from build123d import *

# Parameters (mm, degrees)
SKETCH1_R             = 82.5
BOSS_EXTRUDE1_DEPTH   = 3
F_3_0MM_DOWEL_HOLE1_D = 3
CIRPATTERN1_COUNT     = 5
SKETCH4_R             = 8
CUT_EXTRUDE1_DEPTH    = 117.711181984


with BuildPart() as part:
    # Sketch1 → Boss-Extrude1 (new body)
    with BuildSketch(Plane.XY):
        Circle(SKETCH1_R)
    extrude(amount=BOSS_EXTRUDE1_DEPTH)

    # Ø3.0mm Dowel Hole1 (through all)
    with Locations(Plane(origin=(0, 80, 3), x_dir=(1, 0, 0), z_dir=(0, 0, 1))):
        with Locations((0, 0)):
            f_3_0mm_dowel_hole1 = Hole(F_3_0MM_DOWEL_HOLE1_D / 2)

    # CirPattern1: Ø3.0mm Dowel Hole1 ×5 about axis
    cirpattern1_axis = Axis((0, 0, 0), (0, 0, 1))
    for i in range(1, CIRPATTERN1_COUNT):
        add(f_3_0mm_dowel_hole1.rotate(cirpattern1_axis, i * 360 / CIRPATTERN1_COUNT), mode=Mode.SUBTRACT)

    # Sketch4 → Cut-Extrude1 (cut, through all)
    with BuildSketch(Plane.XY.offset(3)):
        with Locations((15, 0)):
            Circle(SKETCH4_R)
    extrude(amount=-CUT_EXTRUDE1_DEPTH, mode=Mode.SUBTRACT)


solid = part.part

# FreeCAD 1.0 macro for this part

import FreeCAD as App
import Part
import Sketcher
from FreeCAD import Vector
Q = App.Units.Quantity

doc = App.newDocument("Part")
body = doc.addObject("PartDesign::Body", "Body")

# Sketch on XY plane
sketch1 = body.newObject("Sketcher::SketchObject", "Sketch")
sketch1.AttachmentSupport = (doc.getObject("XY_Plane"), [""])
sketch1.MapMode = "FlatFace"
sketch1.addGeometry(Part.Circle(Vector(0, 0, 0), Vector(0, 0, 1), 82), False)
sketch1.addConstraint([
    Sketcher.Constraint("Coincident", 0, 3, -1, 1),
    Sketcher.Constraint("Diameter", 0, Q("165 mm")),
])
pad1 = body.newObject("PartDesign::Pad", "Pad")
pad1.Profile = sketch1
pad1.Length = 3

# Sketch on XY plane
sketch2 = body.newObject("Sketcher::SketchObject", "Sketch001")
sketch2.AttachmentSupport = (doc.getObject("XY_Plane"), [""])
sketch2.MapMode = "FlatFace"
sketch2.AttachmentOffset = App.Placement(Vector(0, 0, 3), App.Rotation())
sketch2.addGeometry(Part.Circle(Vector(0, 80, 0), Vector(0, 0, 1), 1.5), False)
sketch2.addConstraint([
    Sketcher.Constraint("PointOnObject", 0, 3, -2),
    Sketcher.Constraint("Diameter", 0, Q("3 mm")),
    Sketcher.Constraint("DistanceY", -1, 1, 0, 3, Q("80 mm")),
])
doc.recompute()
hole = body.newObject("PartDesign::Hole", "Hole")
hole.Profile = sketch2
hole.ThreadType = "None"
hole.Diameter = 3
hole.DepthType = "ThroughAll"
doc.recompute()

polarpattern = body.newObject("PartDesign::PolarPattern", "PolarPattern")
polarpattern.Originals = [hole]
polarpattern.Axis = (doc.getObject("Z_Axis"), [""])
polarpattern.Angle = 360
polarpattern.Occurrences = 5
body.Tip = polarpattern

# Sketch on XY plane
sketch3 = body.newObject("Sketcher::SketchObject", "Sketch002")
sketch3.AttachmentSupport = (doc.getObject("XY_Plane"), [""])
sketch3.MapMode = "FlatFace"
sketch3.AttachmentOffset = App.Placement(Vector(0, 0, 3), App.Rotation())
sketch3.addGeometry(Part.Circle(Vector(15, 0, 0), Vector(0, 0, 1), 8), False)
sketch3.addConstraint([
    Sketcher.Constraint("PointOnObject", 0, 3, -1),
    Sketcher.Constraint("Diameter", 0, Q("16 mm")),
    Sketcher.Constraint("DistanceX", -1, 1, 0, 3, Q("15 mm")),
])
pocket1 = body.newObject("PartDesign::Pocket", "Pocket")
pocket1.Profile = sketch3
pocket1.Type = "ThroughAll"

doc.recompute()
